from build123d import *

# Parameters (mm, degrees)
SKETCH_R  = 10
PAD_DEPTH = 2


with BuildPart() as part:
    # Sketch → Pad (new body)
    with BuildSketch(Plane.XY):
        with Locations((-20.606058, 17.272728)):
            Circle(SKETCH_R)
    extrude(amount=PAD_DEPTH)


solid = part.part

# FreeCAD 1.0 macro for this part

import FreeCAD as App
import Part
import Sketcher
from FreeCAD import Vector

doc = App.newDocument("Part")
body = doc.addObject("PartDesign::Body", "Body")

sketch1 = body.newObject("Sketcher::SketchObject", "Sketch")
sketch1.AttachmentSupport = (doc.getObject("XY_Plane"), [""])
sketch1.MapMode = "FlatFace"
sketch1.addGeometry(Part.Circle(Vector(-21, 17, 0), Vector(0, 0, 1), 10), False)
sketch1.addConstraint([
    Sketcher.Constraint("Diameter", 0, 20.0),
    Sketcher.Constraint("DistanceX", 0, 3, -1, 1, 20.606058),
    Sketcher.Constraint("DistanceY", -1, 1, 0, 3, 17.272728),
])
pad1 = body.newObject("PartDesign::Pad", "Pad")
pad1.Profile = sketch1
pad1.Length = 2

doc.recompute()
